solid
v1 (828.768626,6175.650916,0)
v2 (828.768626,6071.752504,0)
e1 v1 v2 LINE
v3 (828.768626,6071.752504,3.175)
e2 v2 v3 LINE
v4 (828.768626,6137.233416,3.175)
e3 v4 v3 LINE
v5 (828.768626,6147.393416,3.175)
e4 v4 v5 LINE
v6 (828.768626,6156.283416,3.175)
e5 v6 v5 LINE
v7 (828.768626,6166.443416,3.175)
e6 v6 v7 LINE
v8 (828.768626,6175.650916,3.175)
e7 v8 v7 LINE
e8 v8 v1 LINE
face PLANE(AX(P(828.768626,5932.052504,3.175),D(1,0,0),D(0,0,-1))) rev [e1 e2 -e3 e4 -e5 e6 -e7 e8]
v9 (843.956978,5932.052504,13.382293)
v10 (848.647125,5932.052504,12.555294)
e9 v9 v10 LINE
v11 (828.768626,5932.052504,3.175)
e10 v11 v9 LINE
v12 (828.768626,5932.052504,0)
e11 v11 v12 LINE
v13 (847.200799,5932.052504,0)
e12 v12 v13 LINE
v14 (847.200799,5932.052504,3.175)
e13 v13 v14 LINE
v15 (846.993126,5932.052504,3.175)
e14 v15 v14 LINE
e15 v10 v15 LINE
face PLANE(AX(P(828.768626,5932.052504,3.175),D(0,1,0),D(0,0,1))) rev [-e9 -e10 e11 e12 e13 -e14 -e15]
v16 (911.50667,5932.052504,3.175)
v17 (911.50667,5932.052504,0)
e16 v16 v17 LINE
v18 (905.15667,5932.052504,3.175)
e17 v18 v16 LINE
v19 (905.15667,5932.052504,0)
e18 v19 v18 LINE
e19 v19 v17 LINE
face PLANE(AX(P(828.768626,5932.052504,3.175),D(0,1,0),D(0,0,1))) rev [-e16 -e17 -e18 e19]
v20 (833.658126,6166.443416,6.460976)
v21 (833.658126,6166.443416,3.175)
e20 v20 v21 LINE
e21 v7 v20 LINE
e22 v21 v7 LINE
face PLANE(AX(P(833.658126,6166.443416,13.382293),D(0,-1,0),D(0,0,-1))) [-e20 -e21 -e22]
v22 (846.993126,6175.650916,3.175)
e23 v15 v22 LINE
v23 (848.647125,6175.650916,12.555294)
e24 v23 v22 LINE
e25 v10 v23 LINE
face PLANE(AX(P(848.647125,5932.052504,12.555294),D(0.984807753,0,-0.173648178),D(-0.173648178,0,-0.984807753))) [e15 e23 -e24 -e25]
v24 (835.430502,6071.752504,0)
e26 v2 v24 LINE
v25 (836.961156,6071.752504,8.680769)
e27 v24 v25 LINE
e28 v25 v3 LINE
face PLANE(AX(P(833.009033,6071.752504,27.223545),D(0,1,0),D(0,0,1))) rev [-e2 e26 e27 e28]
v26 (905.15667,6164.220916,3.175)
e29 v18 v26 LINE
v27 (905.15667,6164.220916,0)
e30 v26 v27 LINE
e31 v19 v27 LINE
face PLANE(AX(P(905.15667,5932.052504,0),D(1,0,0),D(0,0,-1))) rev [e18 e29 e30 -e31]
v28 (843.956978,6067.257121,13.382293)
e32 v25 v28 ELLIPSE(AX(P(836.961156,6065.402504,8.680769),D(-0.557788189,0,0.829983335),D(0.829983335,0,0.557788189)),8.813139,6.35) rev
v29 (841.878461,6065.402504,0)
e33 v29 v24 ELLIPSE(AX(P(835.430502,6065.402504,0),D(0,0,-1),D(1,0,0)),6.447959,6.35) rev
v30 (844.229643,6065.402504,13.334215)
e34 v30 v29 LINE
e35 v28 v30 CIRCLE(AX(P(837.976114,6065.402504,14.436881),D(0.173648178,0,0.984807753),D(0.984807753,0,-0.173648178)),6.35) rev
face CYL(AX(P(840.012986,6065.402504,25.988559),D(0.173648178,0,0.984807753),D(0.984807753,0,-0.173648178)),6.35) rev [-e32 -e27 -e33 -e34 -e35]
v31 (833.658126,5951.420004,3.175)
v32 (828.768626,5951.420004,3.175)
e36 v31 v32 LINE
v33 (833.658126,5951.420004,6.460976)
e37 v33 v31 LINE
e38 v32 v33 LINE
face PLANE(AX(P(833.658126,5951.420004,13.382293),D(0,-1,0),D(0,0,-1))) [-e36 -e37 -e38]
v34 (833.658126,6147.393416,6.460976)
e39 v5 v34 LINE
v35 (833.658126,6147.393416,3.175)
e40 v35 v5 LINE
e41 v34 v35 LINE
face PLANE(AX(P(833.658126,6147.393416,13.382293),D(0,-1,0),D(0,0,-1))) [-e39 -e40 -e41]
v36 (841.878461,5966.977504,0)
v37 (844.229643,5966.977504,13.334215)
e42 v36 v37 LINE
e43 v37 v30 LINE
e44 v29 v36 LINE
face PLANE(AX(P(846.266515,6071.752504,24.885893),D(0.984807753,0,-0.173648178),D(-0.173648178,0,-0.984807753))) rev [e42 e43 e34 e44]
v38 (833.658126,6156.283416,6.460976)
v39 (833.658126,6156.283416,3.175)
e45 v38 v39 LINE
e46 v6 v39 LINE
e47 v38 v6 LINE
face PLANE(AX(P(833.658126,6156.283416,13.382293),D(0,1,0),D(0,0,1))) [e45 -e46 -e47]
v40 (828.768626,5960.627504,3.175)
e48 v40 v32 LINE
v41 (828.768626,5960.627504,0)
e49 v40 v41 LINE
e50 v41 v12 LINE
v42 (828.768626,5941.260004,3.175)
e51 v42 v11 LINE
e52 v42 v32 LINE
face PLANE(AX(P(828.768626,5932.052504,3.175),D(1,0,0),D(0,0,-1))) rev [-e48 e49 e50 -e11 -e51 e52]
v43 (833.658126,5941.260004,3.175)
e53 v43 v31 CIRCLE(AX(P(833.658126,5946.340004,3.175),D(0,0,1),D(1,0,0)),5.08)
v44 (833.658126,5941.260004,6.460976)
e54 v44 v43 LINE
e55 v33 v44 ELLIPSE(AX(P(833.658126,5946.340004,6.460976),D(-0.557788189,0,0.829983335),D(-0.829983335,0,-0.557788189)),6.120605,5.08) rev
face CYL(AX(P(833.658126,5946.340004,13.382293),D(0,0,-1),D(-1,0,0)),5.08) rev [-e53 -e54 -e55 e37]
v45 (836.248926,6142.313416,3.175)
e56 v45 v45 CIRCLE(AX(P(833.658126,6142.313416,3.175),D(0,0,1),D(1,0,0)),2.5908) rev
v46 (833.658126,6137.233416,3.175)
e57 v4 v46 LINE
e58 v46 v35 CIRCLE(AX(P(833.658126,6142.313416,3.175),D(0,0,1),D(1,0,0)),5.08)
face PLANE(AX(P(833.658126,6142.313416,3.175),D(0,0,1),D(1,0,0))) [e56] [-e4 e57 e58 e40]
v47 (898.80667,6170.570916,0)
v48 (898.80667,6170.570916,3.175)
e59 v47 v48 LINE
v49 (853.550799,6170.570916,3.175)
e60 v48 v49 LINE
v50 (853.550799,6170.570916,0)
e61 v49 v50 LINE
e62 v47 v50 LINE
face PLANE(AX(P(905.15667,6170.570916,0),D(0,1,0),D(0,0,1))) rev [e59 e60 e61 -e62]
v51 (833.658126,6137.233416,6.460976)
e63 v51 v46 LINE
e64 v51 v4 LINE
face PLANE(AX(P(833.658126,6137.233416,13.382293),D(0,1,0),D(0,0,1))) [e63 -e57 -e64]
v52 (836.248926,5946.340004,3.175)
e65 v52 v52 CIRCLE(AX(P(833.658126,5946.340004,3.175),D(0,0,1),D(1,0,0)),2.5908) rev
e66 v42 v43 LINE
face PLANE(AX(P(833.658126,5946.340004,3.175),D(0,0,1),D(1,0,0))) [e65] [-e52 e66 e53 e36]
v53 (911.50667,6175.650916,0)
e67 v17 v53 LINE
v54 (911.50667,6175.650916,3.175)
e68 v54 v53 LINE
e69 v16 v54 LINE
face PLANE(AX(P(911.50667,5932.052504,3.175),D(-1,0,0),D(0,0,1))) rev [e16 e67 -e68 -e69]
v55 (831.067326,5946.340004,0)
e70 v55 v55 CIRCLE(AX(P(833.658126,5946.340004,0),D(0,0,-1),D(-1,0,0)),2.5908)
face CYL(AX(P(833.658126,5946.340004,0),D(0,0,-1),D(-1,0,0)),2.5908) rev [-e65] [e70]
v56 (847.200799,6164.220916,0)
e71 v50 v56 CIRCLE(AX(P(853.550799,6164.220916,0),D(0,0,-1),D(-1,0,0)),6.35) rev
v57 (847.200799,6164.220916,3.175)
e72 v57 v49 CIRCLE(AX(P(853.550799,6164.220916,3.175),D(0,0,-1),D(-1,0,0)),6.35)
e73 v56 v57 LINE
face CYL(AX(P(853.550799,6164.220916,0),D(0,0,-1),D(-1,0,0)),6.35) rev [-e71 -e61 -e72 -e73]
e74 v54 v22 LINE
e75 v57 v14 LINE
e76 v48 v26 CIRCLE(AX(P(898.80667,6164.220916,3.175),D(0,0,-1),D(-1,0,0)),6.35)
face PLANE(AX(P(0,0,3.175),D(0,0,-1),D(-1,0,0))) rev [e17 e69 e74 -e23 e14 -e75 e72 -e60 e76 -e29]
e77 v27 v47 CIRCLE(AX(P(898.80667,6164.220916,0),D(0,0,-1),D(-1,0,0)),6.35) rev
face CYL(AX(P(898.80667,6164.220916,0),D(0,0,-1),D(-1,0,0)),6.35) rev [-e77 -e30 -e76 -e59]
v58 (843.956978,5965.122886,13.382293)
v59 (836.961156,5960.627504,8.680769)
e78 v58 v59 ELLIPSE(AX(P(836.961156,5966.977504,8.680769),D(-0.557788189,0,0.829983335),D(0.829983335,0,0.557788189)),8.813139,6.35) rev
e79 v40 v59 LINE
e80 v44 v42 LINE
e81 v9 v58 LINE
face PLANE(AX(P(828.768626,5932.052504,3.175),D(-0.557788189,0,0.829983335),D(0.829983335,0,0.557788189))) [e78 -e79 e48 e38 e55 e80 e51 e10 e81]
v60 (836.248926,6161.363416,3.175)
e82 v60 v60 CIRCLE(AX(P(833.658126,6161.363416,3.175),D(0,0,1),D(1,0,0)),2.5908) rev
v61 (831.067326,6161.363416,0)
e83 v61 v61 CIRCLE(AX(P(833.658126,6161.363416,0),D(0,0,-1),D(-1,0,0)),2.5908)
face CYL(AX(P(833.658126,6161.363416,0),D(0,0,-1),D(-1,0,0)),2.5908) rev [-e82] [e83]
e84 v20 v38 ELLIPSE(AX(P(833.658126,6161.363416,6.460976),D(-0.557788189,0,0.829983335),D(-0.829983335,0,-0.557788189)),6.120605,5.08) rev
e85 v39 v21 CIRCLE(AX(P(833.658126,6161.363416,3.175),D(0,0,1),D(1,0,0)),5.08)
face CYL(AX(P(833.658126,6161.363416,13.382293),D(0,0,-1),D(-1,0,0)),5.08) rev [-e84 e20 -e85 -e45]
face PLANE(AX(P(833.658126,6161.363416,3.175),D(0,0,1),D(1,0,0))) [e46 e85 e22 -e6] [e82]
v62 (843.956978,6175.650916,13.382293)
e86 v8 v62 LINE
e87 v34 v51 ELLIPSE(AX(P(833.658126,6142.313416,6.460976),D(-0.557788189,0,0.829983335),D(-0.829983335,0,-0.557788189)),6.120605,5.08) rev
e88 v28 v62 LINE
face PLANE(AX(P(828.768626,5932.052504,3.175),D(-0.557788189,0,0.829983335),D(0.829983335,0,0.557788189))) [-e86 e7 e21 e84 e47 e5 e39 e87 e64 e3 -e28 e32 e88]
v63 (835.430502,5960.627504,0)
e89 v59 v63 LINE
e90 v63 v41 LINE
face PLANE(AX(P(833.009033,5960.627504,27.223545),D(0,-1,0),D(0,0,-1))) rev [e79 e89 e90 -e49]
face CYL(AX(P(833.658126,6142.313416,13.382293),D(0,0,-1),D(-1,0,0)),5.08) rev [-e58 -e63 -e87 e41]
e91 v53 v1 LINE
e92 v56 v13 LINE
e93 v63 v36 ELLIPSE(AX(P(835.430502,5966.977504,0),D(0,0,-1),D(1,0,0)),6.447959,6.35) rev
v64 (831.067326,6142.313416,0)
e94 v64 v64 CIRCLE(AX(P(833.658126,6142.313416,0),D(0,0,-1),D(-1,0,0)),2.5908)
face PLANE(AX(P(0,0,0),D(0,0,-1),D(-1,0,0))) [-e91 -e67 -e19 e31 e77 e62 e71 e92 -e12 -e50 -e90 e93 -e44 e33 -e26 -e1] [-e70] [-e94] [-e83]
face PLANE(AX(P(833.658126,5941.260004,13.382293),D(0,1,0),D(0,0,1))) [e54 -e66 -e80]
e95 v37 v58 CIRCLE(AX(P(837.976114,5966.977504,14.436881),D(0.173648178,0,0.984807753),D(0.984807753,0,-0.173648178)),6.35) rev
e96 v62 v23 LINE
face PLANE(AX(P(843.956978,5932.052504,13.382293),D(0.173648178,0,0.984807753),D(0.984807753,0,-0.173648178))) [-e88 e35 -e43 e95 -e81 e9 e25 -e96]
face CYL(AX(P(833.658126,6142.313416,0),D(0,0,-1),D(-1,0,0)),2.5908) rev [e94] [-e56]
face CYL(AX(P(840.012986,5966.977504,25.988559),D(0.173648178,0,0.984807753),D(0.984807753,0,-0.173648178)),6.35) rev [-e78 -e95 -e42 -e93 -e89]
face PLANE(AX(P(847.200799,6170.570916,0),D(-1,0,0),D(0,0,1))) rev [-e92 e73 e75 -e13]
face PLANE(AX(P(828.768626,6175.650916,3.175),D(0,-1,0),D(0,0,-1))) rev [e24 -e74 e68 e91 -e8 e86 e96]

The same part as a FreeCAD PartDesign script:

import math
import FreeCAD as App
import Part
import Sketcher
from FreeCAD import Vector
Q = App.Units.Quantity


def edges_at(feature, points):
    """Names of the edges that pass closest to the given points."""
    edges = feature.Shape.Edges
    near = lambda p: min(range(len(edges)), key=lambda i: edges[i].distToShape(Part.Vertex(*p))[0])
    return sorted({f"Edge{near(p) + 1}" for p in points})


def add_polygon(sketch, points):
    """Adds a closed chain of lines whose ends are joined by coincident constraints."""
    first, n = sketch.GeometryCount, len(points)
    for a, b in zip(points, points[1:] + points[:1]):
        sketch.addGeometry(Part.LineSegment(App.Vector(*a, 0), App.Vector(*b, 0)), False)
    for i in range(n):
        sketch.addConstraint(Sketcher.Constraint("Coincident", first + i, 2, first + (i + 1) % n, 1))

doc = App.newDocument("Part")
body = doc.addObject("PartDesign::Body", "Body")

sketch1 = body.newObject("Sketcher::SketchObject", "Sketch")
sketch1.AttachmentSupport = (doc.getObject("XY_Plane"), [""])
sketch1.MapMode = "FlatFace"
add_polygon(sketch1, [(829, 6176), (829, 5932), (912, 5932), (912, 6176)])
sketch1.addConstraint([
    Sketcher.Constraint("Vertical", 0),
    Sketcher.Constraint("Horizontal", 1),
    Sketcher.Constraint("Vertical", 2),
    Sketcher.Constraint("Horizontal", 3),
    Sketcher.Constraint("DistanceY", 0, 2, 0, 1, 243.598412),
    Sketcher.Constraint("DistanceX", 1, 1, 1, 2, 82.738044),
    Sketcher.Constraint("DistanceX", -1, 1, 1, 2, 911.50667),
    Sketcher.Constraint("DistanceY", -1, 1, 0, 2, 5932.052504),
])
pad1 = body.newObject("PartDesign::Pad", "Pad")
pad1.Profile = sketch1
pad1.Length = Q("0.125 in")

sketch2 = body.newObject("Sketcher::SketchObject", "Sketch001")
sketch2.AttachmentSupport = (doc.getObject("XZ_Plane"), [""])
sketch2.MapMode = "FlatFace"
sketch2.AttachmentOffset = App.Placement(Vector(0, 0, -6175.650916), App.Rotation())
add_polygon(sketch2, [(828.8, 3.2), (844, 13.4), (848.6, 12.6), (847, 3.2)])
sketch2.addConstraint([
    Sketcher.Constraint("Horizontal", 3),
    Sketcher.Constraint("Perpendicular", 1, 2),
    Sketcher.Constraint("Angle", 1, Q("-10 deg")),
    Sketcher.Constraint("Distance", 1, Q("0.1875 in")),
    Sketcher.Constraint("Distance", 2, Q("0.375 in")),
    Sketcher.Constraint("DistanceX", 3, 2, 3, 1, Q("0.7175 in")),
    Sketcher.Constraint("DistanceY", -1, 1, 2, 2, Q("0.125 in")),
    Sketcher.Constraint("DistanceX", -1, 1, 0, 2, 843.956978),
])
pad2 = body.newObject("PartDesign::Pad", "Pad001")
pad2.Profile = sketch2
pad2.Length = 243.598412

sketch3 = body.newObject("Sketcher::SketchObject", "Sketch002")
sketch3.Placement = App.Placement(Vector(1789.989772, 0, -153.428813), App.Rotation(Vector(-0.984807753, 0, 0.173648178), Vector(0, 1, 0), Vector(-0.173648178, 0, -0.984807753), "ZXY"))
add_polygon(sketch3, [(960, 6072), (960, 5961), (974, 5961), (974, 6072)])
sketch3.addConstraint([
    Sketcher.Constraint("Vertical", 0),
    Sketcher.Constraint("Horizontal", 1),
    Sketcher.Constraint("Vertical", 2),
    Sketcher.Constraint("Horizontal", 3),
    Sketcher.Constraint("DistanceX", 1, 1, 1, 2, Q("0.53 in")),
    Sketcher.Constraint("DistanceY", 0, 2, 0, 1, Q("4.375 in")),
    Sketcher.Constraint("DistanceX", -1, 1, 0, 2, 960.350003),
    Sketcher.Constraint("DistanceY", -1, 1, 0, 2, 5960.627505),
])
pocket1 = body.newObject("PartDesign::Pocket", "Pocket")
pocket1.Profile = sketch3
pocket1.Type = "ThroughAll"
pocket1.Midplane = True
doc.recompute()

fillet = body.newObject("PartDesign::Fillet", "Fillet")
fillet.Base = (pocket1, edges_at(pocket1, [(843.054, 6071.753, 6.667), (843.054, 5960.628, 6.667)]))
fillet.Radius = Q("0.25 in")

sketch4 = body.newObject("Sketcher::SketchObject", "Sketch003")
sketch4.AttachmentSupport = (doc.getObject("XY_Plane"), [""])
sketch4.MapMode = "FlatFace"
sketch4.AttachmentOffset = App.Placement(Vector(0, 0, 0.125 * 25.4), App.Rotation())
add_polygon(sketch4, [(847, 6171), (847, 5932), (905, 5932), (905, 6171)])
sketch4.addConstraint([
    Sketcher.Constraint("Vertical", 0),
    Sketcher.Constraint("Horizontal", 1),
    Sketcher.Constraint("Vertical", 2),
    Sketcher.Constraint("Horizontal", 3),
    Sketcher.Constraint("DistanceX", 1, 1, 1, 2, 57.955871),
    Sketcher.Constraint("DistanceY", 0, 2, 0, 1, 238.518412),
    Sketcher.Constraint("DistanceX", -1, 1, 0, 2, 847.200799),
    Sketcher.Constraint("DistanceY", -1, 1, 0, 2, 5932.052504),
])
pocket2 = body.newObject("PartDesign::Pocket", "Pocket001")
pocket2.Profile = sketch4
pocket2.Type = "ThroughAll"
doc.recompute()

fillet2 = body.newObject("PartDesign::Fillet", "Fillet001")
fillet2.Base = (pocket2, edges_at(pocket2, [(905.157, 6170.571, 1.587), (847.201, 6170.571, 1.587)]))
fillet2.Radius = Q("0.25 in")

sketch5 = body.newObject("Sketcher::SketchObject", "Sketch004")
sketch5.AttachmentSupport = (doc.getObject("XY_Plane"), [""])
sketch5.MapMode = "FlatFace"
sketch5.addGeometry([
    Part.Circle(Vector(833.7, 6161.4, 0), Vector(0, 0, 1), 2.6),
    Part.Circle(Vector(833.7, 6142.3, 0), Vector(0, 0, 1), 2.6),
    Part.Circle(Vector(833.7, 5946.3, 0), Vector(0, 0, 1), 2.6),
], False)
sketch5.addConstraint([
    Sketcher.Constraint("Equal", 0, 1),
    Sketcher.Constraint("Equal", 1, 2),
    Sketcher.Constraint("Vertical", 0, 3, 1, 3),
    Sketcher.Constraint("Vertical", 1, 3, 2, 3),
    Sketcher.Constraint("Diameter", 0, Q("0.204 in")),
    Sketcher.Constraint("DistanceY", 1, 3, 0, 3, Q("0.75 in")),
    Sketcher.Constraint("DistanceY", 2, 3, 1, 3, 195.973412),
    Sketcher.Constraint("DistanceX", -1, 1, 0, 3, 833.658126),
    Sketcher.Constraint("DistanceY", -1, 1, 0, 3, 6161.363416),
])
doc.recompute()
hole = body.newObject("PartDesign::Hole", "Hole")
hole.Profile = sketch5
hole.ThreadType = "None"
hole.Diameter = Q("0.204 in")
hole.DepthType = "ThroughAll"
hole.Reversed = True

sketch6 = body.newObject("Sketcher::SketchObject", "Sketch005")
sketch6.AttachmentSupport = (doc.getObject("XY_Plane"), [""])
sketch6.MapMode = "FlatFace"
sketch6.AttachmentOffset = App.Placement(Vector(0, 0, 0.125 * 25.4), App.Rotation())
sketch6.addGeometry([
    Part.LineSegment(Vector(828.8, 6156.3, 0), Vector(833.7, 6156.3, 0)),
    Part.ArcOfCircle(Part.Circle(Vector(833.7, 6161.4, 0), Vector(0, 0, 1), 5.1), math.radians(-90), math.radians(90)),
    Part.LineSegment(Vector(833.7, 6166.4, 0), Vector(828.8, 6166.4, 0)),
    Part.ArcOfCircle(Part.Circle(Vector(828.8, 6161.4, 0), Vector(0, 0, 1), 5.1), math.radians(90), math.radians(270)),
    Part.LineSegment(Vector(828.8, 6137.2, 0), Vector(833.7, 6137.2, 0)),
    Part.ArcOfCircle(Part.Circle(Vector(833.7, 6142.3, 0), Vector(0, 0, 1), 5.1), math.radians(-90), math.radians(90)),
    Part.LineSegment(Vector(833.7, 6147.4, 0), Vector(828.8, 6147.4, 0)),
    Part.ArcOfCircle(Part.Circle(Vector(828.8, 6142.3, 0), Vector(0, 0, 1), 5.1), math.radians(90), math.radians(270)),
    Part.LineSegment(Vector(828.8, 5941.3, 0), Vector(833.7, 5941.3, 0)),
    Part.ArcOfCircle(Part.Circle(Vector(833.7, 5946.3, 0), Vector(0, 0, 1), 5.1), math.radians(-90), math.radians(90)),
    Part.LineSegment(Vector(833.7, 5951.4, 0), Vector(828.8, 5951.4, 0)),
    Part.ArcOfCircle(Part.Circle(Vector(828.8, 5946.3, 0), Vector(0, 0, 1), 5.1), math.radians(90), math.radians(270)),
], False)
sketch6.addConstraint([
    Sketcher.Constraint("Tangent", 0, 2, 1, 1),
    Sketcher.Constraint("Tangent", 1, 2, 2, 1),
    Sketcher.Constraint("Tangent", 2, 2, 3, 1),
    Sketcher.Constraint("Tangent", 3, 2, 0, 1),
    Sketcher.Constraint("Tangent", 4, 2, 5, 1),
    Sketcher.Constraint("Tangent", 5, 2, 6, 1),
    Sketcher.Constraint("Tangent", 6, 2, 7, 1),
    Sketcher.Constraint("Tangent", 7, 2, 4, 1),
    Sketcher.Constraint("Tangent", 8, 2, 9, 1),
    Sketcher.Constraint("Tangent", 9, 2, 10, 1),
    Sketcher.Constraint("Tangent", 10, 2, 11, 1),
    Sketcher.Constraint("Tangent", 11, 2, 8, 1),
    Sketcher.Constraint("Horizontal", 0),
    Sketcher.Constraint("Horizontal", 2),
    Sketcher.Constraint("Horizontal", 4),
    Sketcher.Constraint("Horizontal", 6),
    Sketcher.Constraint("Horizontal", 8),
    Sketcher.Constraint("Horizontal", 10),
    Sketcher.Constraint("Equal", 3, 5),
    Sketcher.Constraint("Equal", 7, 9),
    Sketcher.Constraint("Vertical", 1, 3, 5, 3),
    Sketcher.Constraint("Vertical", 3, 3, 7, 3),
    Sketcher.Constraint("Vertical", 5, 3, 9, 3),
    Sketcher.Constraint("Vertical", 7, 3, 11, 3),
    Sketcher.Constraint("Radius", 1, Q("0.2 in")),
    Sketcher.Constraint("DistanceY", 5, 3, 1, 3, Q("0.75 in")),
    Sketcher.Constraint("DistanceX", 0, 1, 0, 2, Q("0.1925 in")),
    Sketcher.Constraint("DistanceY", 9, 3, 5, 3, 195.973412),
    Sketcher.Constraint("DistanceX", -1, 1, 1, 3, 833.658126),
    Sketcher.Constraint("DistanceY", -1, 1, 1, 3, 6161.363416),
])
pocket3 = body.newObject("PartDesign::Pocket", "Pocket002")
pocket3.Profile = sketch6
pocket3.Type = "ThroughAll"
pocket3.Reversed = True

doc.recompute()
